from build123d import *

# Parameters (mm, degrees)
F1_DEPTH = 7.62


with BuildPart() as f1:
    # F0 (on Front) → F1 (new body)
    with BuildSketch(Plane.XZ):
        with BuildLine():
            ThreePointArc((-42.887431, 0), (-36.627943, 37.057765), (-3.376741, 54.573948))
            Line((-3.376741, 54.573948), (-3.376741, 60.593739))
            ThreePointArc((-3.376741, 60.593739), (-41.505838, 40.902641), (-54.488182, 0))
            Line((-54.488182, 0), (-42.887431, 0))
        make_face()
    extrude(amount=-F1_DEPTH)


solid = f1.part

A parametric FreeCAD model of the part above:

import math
import FreeCAD as App
import Part
import Sketcher

V = App.Vector
Q = App.Units.Quantity

doc = App.newDocument("Part")
body = doc.addObject("PartDesign::Body", "Body")

sketch1 = body.newObject("Sketcher::SketchObject", "Sketch")
sketch1.AttachmentSupport = (doc.getObject("XZ_Plane"), [""])
sketch1.MapMode = "FlatFace"
sketch1.addGeometry([
    Part.ArcOfCircle(Part.Circle(V(-2, 12, 0), V(0, 0, 1), 42), math.radians(91), math.radians(197)),
    Part.LineSegment(V(-3, 55, 0), V(-3, 61, 0)),
    Part.ArcOfCircle(Part.Circle(V(1, 5, 0), V(0, 0, 1), 56), math.radians(95), math.radians(185)),
    Part.LineSegment(V(-54, 0, 0), V(-43, 0, 0)),
], False)
sketch1.addConstraint([
    Sketcher.Constraint("Coincident", 0, 1, 1, 1),
    Sketcher.Constraint("Coincident", 1, 2, 2, 1),
    Sketcher.Constraint("Coincident", 2, 2, 3, 1),
    Sketcher.Constraint("Coincident", 3, 2, 0, 2),
    Sketcher.Constraint("Vertical", 1),
    Sketcher.Constraint("Horizontal", 3),
    Sketcher.Constraint("PointOnObject", 2, 2, -1),
    Sketcher.Constraint("Radius", 0, Q("42.386842 mm")),
    Sketcher.Constraint("Radius", 2, Q("55.977827 mm")),
    Sketcher.Constraint("DistanceX", 2, 2, 2, 3, Q("2.1956998 in")),
    Sketcher.Constraint("DistanceX", 3, 1, 3, 2, Q("11.600751 mm")),
    Sketcher.Constraint("DistanceY", 1, 1, 1, 2, Q("6.019791 mm")),
    Sketcher.Constraint("DistanceX", 0, 3, -1, 1, Q("2.294551 mm")),
    Sketcher.Constraint("DistanceX", 0, 1, -1, 1, Q("3.376741 mm")),
])
pad1 = body.newObject("PartDesign::Pad", "Pad")
pad1.Profile = sketch1
pad1.Length = Q("0.3 in")
pad1.Reversed = True

doc.recompute()
